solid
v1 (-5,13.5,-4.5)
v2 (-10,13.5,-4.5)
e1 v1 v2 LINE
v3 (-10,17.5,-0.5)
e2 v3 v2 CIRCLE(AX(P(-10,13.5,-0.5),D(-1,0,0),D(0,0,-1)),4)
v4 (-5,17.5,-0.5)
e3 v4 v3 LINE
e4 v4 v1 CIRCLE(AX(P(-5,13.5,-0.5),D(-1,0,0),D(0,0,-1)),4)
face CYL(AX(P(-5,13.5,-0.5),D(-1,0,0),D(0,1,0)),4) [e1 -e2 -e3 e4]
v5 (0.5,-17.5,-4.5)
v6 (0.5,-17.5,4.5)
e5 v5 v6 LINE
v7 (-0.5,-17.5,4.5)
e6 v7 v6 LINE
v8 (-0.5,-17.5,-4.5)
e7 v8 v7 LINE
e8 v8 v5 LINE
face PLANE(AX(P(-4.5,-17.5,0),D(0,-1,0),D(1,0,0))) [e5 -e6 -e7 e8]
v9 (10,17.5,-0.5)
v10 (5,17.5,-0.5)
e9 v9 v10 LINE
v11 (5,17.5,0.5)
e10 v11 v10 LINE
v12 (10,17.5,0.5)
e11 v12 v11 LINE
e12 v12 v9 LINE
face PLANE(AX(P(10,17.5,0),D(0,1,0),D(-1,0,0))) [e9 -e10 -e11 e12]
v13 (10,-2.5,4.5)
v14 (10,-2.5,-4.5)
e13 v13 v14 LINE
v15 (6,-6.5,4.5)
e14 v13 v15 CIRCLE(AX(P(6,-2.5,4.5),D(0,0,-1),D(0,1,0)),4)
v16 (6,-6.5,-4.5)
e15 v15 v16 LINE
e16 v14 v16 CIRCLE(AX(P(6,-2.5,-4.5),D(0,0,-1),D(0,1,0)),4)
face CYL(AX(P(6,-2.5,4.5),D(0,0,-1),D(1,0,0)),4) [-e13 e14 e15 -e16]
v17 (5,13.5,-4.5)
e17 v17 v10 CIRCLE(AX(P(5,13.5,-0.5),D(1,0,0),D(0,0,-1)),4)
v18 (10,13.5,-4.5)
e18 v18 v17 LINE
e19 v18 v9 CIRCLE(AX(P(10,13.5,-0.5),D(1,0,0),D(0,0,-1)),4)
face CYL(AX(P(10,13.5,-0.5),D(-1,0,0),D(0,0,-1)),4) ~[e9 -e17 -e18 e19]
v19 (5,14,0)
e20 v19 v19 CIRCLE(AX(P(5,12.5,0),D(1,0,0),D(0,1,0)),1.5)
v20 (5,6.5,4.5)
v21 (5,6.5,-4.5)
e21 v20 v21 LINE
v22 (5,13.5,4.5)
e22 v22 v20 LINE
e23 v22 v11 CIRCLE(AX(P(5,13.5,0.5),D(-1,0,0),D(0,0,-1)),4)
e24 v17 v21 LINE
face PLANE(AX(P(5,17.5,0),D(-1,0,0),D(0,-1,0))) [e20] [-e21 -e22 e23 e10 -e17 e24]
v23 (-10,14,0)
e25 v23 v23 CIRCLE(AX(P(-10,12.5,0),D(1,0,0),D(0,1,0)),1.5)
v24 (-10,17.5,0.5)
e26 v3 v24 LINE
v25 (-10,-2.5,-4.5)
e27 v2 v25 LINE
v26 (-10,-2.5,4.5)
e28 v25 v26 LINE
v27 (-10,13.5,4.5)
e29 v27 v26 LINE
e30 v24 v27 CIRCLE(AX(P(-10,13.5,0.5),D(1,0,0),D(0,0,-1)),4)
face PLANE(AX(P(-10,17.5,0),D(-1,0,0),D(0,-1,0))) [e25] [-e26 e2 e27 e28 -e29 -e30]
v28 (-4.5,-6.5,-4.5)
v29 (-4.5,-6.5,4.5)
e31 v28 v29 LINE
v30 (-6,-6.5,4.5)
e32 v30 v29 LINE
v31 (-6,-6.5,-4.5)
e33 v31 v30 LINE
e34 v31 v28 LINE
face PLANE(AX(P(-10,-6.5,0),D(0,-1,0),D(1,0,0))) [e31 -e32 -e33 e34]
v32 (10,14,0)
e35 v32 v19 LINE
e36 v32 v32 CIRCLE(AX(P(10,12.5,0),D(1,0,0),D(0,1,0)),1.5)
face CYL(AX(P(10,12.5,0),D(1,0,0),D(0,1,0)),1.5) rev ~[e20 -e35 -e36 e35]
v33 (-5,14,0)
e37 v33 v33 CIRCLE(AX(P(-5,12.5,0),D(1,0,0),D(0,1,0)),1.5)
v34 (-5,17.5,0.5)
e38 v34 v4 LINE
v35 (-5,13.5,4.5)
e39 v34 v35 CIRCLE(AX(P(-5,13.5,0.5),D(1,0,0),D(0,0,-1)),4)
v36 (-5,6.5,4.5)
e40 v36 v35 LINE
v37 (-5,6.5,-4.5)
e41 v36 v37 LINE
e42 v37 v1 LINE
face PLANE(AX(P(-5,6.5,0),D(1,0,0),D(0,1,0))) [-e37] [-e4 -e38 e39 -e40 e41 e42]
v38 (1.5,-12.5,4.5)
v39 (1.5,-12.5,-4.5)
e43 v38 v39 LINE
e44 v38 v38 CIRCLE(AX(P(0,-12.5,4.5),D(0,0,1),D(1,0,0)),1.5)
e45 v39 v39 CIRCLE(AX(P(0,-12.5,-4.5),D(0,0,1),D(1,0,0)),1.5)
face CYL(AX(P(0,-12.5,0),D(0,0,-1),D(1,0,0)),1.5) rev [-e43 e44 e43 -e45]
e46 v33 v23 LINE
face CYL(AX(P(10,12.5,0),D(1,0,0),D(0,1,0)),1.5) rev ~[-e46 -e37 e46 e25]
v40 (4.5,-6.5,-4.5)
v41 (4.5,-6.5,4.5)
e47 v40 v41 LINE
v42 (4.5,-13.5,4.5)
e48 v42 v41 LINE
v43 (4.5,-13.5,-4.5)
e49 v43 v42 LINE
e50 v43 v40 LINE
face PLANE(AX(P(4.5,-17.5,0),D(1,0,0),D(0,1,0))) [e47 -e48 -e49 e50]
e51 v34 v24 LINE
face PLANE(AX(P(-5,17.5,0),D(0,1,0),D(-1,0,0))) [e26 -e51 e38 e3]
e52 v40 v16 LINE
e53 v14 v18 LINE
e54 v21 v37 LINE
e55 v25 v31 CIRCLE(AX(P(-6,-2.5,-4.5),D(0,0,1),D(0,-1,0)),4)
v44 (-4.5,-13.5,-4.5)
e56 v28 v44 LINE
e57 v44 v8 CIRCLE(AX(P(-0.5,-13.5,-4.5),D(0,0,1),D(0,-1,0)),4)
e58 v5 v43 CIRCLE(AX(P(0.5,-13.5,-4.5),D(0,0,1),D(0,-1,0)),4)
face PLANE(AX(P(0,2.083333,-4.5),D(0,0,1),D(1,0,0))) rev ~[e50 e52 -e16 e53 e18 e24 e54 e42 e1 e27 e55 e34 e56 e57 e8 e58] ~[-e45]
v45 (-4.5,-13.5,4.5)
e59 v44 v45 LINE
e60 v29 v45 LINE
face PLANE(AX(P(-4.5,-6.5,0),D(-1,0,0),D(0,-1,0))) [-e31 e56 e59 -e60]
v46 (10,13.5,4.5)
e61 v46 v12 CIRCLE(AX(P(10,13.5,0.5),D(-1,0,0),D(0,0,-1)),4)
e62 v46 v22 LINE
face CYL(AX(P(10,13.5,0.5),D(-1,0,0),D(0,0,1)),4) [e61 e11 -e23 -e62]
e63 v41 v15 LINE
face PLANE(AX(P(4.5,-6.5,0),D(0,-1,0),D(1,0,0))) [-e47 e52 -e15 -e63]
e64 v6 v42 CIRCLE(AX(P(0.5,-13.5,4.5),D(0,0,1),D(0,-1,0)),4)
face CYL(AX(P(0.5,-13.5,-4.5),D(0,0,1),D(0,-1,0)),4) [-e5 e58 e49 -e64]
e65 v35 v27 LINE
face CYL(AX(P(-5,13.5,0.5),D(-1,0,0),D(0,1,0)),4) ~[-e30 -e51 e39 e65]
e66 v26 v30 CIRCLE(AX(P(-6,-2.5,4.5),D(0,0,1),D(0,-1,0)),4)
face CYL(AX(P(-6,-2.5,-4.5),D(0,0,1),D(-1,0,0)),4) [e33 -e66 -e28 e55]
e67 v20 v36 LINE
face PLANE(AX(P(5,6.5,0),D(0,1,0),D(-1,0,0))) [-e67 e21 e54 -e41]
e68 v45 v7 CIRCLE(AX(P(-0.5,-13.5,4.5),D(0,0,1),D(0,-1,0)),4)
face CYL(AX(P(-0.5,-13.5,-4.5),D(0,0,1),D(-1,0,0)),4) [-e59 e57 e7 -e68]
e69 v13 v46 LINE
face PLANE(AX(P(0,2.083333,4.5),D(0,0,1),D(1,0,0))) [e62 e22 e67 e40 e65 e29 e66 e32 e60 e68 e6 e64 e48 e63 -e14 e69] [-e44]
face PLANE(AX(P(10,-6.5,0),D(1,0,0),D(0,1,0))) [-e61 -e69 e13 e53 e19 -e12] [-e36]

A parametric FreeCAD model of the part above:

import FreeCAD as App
import Part
import Sketcher

V = App.Vector
Q = App.Units.Quantity


def edges_at(feature, points):
    """Names of the edges that pass closest to the given points."""
    edges = feature.Shape.Edges
    near = lambda p: min(range(len(edges)), key=lambda i: edges[i].distToShape(Part.Vertex(*p))[0])
    return sorted({f"Edge{near(p) + 1}" for p in points})

doc = App.newDocument("Part")
body = doc.addObject("PartDesign::Body", "Body")

sketch1 = body.newObject("Sketcher::SketchObject", "Sketch")
sketch1.AttachmentSupport = (doc.getObject("XY_Plane"), [""])
sketch1.MapMode = "FlatFace"
sketch1.addGeometry(Part.LineSegment(V(-5, 17.5, 0), V(-10, 17.5, 0)), False)
sketch1.addGeometry(Part.LineSegment(V(-10, 17.5, 0), V(-10, -6.5, 0)), False)
sketch1.addGeometry(Part.LineSegment(V(-10, -6.5, 0), V(-4.5, -6.5, 0)), False)
sketch1.addGeometry(Part.LineSegment(V(-4.5, -6.5, 0), V(-4.5, -17.5, 0)), False)
sketch1.addGeometry(Part.LineSegment(V(-4.5, -17.5, 0), V(4.5, -17.5, 0)), False)
sketch1.addGeometry(Part.LineSegment(V(4.5, -17.5, 0), V(4.5, -6.5, 0)), False)
sketch1.addGeometry(Part.LineSegment(V(4.5, -6.5, 0), V(10, -6.5, 0)), False)
sketch1.addGeometry(Part.LineSegment(V(10, -6.5, 0), V(10, 17.5, 0)), False)
sketch1.addGeometry(Part.LineSegment(V(10, 17.5, 0), V(5, 17.5, 0)), False)
sketch1.addGeometry(Part.LineSegment(V(5, 17.5, 0), V(5, 6.5, 0)), False)
sketch1.addGeometry(Part.LineSegment(V(5, 6.5, 0), V(-5, 6.5, 0)), False)
sketch1.addGeometry(Part.LineSegment(V(-5, 6.5, 0), V(-5, 17.5, 0)), False)
sketch1.addGeometry(Part.Circle(V(0, -12.5, 0), V(0, 0, 1), 1.5), False)
sketch1.addConstraint(Sketcher.Constraint("Coincident", 0, 2, 1, 1))
sketch1.addConstraint(Sketcher.Constraint("Coincident", 1, 2, 2, 1))
sketch1.addConstraint(Sketcher.Constraint("Coincident", 2, 2, 3, 1))
sketch1.addConstraint(Sketcher.Constraint("Coincident", 3, 2, 4, 1))
sketch1.addConstraint(Sketcher.Constraint("Coincident", 4, 2, 5, 1))
sketch1.addConstraint(Sketcher.Constraint("Coincident", 5, 2, 6, 1))
sketch1.addConstraint(Sketcher.Constraint("Coincident", 6, 2, 7, 1))
sketch1.addConstraint(Sketcher.Constraint("Coincident", 7, 2, 8, 1))
sketch1.addConstraint(Sketcher.Constraint("Coincident", 8, 2, 9, 1))
sketch1.addConstraint(Sketcher.Constraint("Coincident", 9, 2, 10, 1))
sketch1.addConstraint(Sketcher.Constraint("Coincident", 10, 2, 11, 1))
sketch1.addConstraint(Sketcher.Constraint("Coincident", 11, 2, 0, 1))
sketch1.addConstraint(Sketcher.Constraint("Horizontal", 0))
sketch1.addConstraint(Sketcher.Constraint("Vertical", 1))
sketch1.addConstraint(Sketcher.Constraint("Horizontal", 2))
sketch1.addConstraint(Sketcher.Constraint("Vertical", 3))
sketch1.addConstraint(Sketcher.Constraint("Horizontal", 4))
sketch1.addConstraint(Sketcher.Constraint("Vertical", 5))
sketch1.addConstraint(Sketcher.Constraint("Horizontal", 6))
sketch1.addConstraint(Sketcher.Constraint("Vertical", 7))
sketch1.addConstraint(Sketcher.Constraint("Horizontal", 8))
sketch1.addConstraint(Sketcher.Constraint("Vertical", 9))
sketch1.addConstraint(Sketcher.Constraint("Horizontal", 10))
sketch1.addConstraint(Sketcher.Constraint("Vertical", 11))
sketch1.addConstraint(Sketcher.Constraint("Symmetric", 2, 2, 5, 2, -2))
sketch1.addConstraint(Sketcher.Constraint("Symmetric", 0, 2, 7, 2, -2))
sketch1.addConstraint(Sketcher.Constraint("PointOnObject", 12, 3, -2))
sketch1.addConstraint(Sketcher.Constraint("Equal", 0, 8))
sketch1.addConstraint(Sketcher.Constraint("Equal", 5, 9))
sketch1.addConstraint(Sketcher.Constraint("Diameter", 12, Q("3 mm")))
sketch1.addConstraint(Sketcher.Constraint("DistanceX", 0, 2, 0, 1, Q("5 mm")))
sketch1.addConstraint(Sketcher.Constraint("DistanceX", 4, 1, 4, 2, Q("9 mm")))
sketch1.addConstraint(Sketcher.Constraint("DistanceX", 10, 2, 10, 1, Q("10 mm")))
sketch1.addConstraint(Sketcher.Constraint("DistanceY", 1, 2, 1, 1, Q("24 mm")))
sketch1.addConstraint(Sketcher.Constraint("DistanceY", 3, 2, 3, 1, Q("11 mm")))
sketch1.addConstraint(Sketcher.Constraint("DistanceY", 12, 3, 0, 2, Q("30 mm")))
sketch1.addConstraint(Sketcher.Constraint("DistanceY", 12, 3, -1, 1, Q("12.5 mm")))
pad1 = body.newObject("PartDesign::Pad", "Pad")
pad1.Profile = sketch1
pad1.Length = 9
pad1.Midplane = True

sketch2 = body.newObject("Sketcher::SketchObject", "Sketch001")
sketch2.AttachmentSupport = (doc.getObject("YZ_Plane"), [""])
sketch2.MapMode = "FlatFace"
sketch2.AttachmentOffset = App.Placement(V(0, 0, 10), App.Rotation())
sketch2.addGeometry(Part.Circle(V(12.5, 0, 0), V(0, 0, 1), 1.5), False)
sketch2.addConstraint(Sketcher.Constraint("PointOnObject", 0, 3, -1))
sketch2.addConstraint(Sketcher.Constraint("Diameter", 0, Q("3 mm")))
sketch2.addConstraint(Sketcher.Constraint("DistanceX", -1, 1, 0, 3, Q("12.5 mm")))
pocket1 = body.newObject("PartDesign::Pocket", "Pocket")
pocket1.Profile = sketch2
pocket1.Type = "ThroughAll"
doc.recompute()

fillet = body.newObject("PartDesign::Fillet", "Fillet")
fillet.Base = (pocket1, edges_at(pocket1, [
    (4.5, -17.5, 0),
    (-4.5, -17.5, 0),
    (7.5, 17.5, 4.5),
    (7.5, 17.5, -4.5),
    (-7.5, 17.5, -4.5),
    (-7.5, 17.5, 4.5),
    (10, -6.5, 0),
    (-10, -6.5, 0),
]))
fillet.Radius = 4

doc.recompute()
